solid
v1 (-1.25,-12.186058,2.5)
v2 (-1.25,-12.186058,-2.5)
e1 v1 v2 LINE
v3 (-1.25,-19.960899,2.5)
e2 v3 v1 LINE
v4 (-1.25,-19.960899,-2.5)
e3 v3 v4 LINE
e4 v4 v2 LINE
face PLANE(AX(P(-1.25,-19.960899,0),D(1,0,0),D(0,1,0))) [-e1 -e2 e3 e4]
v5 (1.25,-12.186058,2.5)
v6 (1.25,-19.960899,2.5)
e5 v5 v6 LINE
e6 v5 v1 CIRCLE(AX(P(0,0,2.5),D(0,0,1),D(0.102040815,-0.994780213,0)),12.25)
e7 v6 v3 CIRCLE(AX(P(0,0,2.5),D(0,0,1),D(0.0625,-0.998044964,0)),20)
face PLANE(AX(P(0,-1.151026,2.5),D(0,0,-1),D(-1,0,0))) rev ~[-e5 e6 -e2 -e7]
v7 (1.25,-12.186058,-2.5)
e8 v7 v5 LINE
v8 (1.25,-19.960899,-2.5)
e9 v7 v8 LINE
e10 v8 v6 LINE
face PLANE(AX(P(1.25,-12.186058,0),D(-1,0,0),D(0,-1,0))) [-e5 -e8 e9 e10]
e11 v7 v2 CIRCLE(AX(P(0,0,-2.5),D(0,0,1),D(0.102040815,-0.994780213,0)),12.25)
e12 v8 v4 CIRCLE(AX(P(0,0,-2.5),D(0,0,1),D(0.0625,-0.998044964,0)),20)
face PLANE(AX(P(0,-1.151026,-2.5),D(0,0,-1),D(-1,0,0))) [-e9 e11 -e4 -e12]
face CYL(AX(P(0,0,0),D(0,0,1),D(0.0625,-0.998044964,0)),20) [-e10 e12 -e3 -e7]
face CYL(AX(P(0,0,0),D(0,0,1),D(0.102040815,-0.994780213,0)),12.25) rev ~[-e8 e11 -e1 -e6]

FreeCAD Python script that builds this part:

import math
import FreeCAD as App
import Part
import Sketcher
from FreeCAD import Vector

doc = App.newDocument("Part")
body = doc.addObject("PartDesign::Body", "Body")

# Sketch on XY plane
sketch1 = body.newObject("Sketcher::SketchObject", "Sketch")
sketch1.AttachmentSupport = (doc.getObject("XY_Plane"), [""])
sketch1.MapMode = "FlatFace"
sketch1.addGeometry([
    Part.ArcOfCircle(Part.Circle(Vector(0, 0, 0), Vector(0, 0, 1), 12.25), math.radians(-84.143298), math.radians(264.143298)),
    Part.LineSegment(Vector(1.25, -12.186058, 0), Vector(1.25, -19.960899, 0)),
    Part.ArcOfCircle(Part.Circle(Vector(0, 0, 0), Vector(0, 0, 1), 20), math.radians(-86.416678), math.radians(266.416678)),
    Part.LineSegment(Vector(-1.25, -19.960899, 0), Vector(-1.25, -12.186058, 0)),
], False)
sketch1.addConstraint([
    Sketcher.Constraint("Coincident", 0, 1, 1, 1),
    Sketcher.Constraint("Coincident", 1, 2, 2, 1),
    Sketcher.Constraint("Coincident", 2, 2, 3, 1),
    Sketcher.Constraint("Coincident", 3, 2, 0, 2),
    Sketcher.Constraint("Vertical", 1),
    Sketcher.Constraint("Vertical", 3),
    Sketcher.Constraint("Coincident", 0, 3, -1, 1),
    Sketcher.Constraint("Coincident", 2, 3, -1, 1),
    Sketcher.Constraint("Horizontal", 1, 2, 2, 2),
    Sketcher.Constraint("Radius", 2, 20.0),
    Sketcher.Constraint("Radius", 0, 12.25),
    Sketcher.Constraint("DistanceX", 2, 2, 1, 2, 2.5),
])
pad1 = body.newObject("PartDesign::Pad", "Pad")
pad1.Profile = sketch1
pad1.Length = 5
pad1.Midplane = True

doc.recompute()
